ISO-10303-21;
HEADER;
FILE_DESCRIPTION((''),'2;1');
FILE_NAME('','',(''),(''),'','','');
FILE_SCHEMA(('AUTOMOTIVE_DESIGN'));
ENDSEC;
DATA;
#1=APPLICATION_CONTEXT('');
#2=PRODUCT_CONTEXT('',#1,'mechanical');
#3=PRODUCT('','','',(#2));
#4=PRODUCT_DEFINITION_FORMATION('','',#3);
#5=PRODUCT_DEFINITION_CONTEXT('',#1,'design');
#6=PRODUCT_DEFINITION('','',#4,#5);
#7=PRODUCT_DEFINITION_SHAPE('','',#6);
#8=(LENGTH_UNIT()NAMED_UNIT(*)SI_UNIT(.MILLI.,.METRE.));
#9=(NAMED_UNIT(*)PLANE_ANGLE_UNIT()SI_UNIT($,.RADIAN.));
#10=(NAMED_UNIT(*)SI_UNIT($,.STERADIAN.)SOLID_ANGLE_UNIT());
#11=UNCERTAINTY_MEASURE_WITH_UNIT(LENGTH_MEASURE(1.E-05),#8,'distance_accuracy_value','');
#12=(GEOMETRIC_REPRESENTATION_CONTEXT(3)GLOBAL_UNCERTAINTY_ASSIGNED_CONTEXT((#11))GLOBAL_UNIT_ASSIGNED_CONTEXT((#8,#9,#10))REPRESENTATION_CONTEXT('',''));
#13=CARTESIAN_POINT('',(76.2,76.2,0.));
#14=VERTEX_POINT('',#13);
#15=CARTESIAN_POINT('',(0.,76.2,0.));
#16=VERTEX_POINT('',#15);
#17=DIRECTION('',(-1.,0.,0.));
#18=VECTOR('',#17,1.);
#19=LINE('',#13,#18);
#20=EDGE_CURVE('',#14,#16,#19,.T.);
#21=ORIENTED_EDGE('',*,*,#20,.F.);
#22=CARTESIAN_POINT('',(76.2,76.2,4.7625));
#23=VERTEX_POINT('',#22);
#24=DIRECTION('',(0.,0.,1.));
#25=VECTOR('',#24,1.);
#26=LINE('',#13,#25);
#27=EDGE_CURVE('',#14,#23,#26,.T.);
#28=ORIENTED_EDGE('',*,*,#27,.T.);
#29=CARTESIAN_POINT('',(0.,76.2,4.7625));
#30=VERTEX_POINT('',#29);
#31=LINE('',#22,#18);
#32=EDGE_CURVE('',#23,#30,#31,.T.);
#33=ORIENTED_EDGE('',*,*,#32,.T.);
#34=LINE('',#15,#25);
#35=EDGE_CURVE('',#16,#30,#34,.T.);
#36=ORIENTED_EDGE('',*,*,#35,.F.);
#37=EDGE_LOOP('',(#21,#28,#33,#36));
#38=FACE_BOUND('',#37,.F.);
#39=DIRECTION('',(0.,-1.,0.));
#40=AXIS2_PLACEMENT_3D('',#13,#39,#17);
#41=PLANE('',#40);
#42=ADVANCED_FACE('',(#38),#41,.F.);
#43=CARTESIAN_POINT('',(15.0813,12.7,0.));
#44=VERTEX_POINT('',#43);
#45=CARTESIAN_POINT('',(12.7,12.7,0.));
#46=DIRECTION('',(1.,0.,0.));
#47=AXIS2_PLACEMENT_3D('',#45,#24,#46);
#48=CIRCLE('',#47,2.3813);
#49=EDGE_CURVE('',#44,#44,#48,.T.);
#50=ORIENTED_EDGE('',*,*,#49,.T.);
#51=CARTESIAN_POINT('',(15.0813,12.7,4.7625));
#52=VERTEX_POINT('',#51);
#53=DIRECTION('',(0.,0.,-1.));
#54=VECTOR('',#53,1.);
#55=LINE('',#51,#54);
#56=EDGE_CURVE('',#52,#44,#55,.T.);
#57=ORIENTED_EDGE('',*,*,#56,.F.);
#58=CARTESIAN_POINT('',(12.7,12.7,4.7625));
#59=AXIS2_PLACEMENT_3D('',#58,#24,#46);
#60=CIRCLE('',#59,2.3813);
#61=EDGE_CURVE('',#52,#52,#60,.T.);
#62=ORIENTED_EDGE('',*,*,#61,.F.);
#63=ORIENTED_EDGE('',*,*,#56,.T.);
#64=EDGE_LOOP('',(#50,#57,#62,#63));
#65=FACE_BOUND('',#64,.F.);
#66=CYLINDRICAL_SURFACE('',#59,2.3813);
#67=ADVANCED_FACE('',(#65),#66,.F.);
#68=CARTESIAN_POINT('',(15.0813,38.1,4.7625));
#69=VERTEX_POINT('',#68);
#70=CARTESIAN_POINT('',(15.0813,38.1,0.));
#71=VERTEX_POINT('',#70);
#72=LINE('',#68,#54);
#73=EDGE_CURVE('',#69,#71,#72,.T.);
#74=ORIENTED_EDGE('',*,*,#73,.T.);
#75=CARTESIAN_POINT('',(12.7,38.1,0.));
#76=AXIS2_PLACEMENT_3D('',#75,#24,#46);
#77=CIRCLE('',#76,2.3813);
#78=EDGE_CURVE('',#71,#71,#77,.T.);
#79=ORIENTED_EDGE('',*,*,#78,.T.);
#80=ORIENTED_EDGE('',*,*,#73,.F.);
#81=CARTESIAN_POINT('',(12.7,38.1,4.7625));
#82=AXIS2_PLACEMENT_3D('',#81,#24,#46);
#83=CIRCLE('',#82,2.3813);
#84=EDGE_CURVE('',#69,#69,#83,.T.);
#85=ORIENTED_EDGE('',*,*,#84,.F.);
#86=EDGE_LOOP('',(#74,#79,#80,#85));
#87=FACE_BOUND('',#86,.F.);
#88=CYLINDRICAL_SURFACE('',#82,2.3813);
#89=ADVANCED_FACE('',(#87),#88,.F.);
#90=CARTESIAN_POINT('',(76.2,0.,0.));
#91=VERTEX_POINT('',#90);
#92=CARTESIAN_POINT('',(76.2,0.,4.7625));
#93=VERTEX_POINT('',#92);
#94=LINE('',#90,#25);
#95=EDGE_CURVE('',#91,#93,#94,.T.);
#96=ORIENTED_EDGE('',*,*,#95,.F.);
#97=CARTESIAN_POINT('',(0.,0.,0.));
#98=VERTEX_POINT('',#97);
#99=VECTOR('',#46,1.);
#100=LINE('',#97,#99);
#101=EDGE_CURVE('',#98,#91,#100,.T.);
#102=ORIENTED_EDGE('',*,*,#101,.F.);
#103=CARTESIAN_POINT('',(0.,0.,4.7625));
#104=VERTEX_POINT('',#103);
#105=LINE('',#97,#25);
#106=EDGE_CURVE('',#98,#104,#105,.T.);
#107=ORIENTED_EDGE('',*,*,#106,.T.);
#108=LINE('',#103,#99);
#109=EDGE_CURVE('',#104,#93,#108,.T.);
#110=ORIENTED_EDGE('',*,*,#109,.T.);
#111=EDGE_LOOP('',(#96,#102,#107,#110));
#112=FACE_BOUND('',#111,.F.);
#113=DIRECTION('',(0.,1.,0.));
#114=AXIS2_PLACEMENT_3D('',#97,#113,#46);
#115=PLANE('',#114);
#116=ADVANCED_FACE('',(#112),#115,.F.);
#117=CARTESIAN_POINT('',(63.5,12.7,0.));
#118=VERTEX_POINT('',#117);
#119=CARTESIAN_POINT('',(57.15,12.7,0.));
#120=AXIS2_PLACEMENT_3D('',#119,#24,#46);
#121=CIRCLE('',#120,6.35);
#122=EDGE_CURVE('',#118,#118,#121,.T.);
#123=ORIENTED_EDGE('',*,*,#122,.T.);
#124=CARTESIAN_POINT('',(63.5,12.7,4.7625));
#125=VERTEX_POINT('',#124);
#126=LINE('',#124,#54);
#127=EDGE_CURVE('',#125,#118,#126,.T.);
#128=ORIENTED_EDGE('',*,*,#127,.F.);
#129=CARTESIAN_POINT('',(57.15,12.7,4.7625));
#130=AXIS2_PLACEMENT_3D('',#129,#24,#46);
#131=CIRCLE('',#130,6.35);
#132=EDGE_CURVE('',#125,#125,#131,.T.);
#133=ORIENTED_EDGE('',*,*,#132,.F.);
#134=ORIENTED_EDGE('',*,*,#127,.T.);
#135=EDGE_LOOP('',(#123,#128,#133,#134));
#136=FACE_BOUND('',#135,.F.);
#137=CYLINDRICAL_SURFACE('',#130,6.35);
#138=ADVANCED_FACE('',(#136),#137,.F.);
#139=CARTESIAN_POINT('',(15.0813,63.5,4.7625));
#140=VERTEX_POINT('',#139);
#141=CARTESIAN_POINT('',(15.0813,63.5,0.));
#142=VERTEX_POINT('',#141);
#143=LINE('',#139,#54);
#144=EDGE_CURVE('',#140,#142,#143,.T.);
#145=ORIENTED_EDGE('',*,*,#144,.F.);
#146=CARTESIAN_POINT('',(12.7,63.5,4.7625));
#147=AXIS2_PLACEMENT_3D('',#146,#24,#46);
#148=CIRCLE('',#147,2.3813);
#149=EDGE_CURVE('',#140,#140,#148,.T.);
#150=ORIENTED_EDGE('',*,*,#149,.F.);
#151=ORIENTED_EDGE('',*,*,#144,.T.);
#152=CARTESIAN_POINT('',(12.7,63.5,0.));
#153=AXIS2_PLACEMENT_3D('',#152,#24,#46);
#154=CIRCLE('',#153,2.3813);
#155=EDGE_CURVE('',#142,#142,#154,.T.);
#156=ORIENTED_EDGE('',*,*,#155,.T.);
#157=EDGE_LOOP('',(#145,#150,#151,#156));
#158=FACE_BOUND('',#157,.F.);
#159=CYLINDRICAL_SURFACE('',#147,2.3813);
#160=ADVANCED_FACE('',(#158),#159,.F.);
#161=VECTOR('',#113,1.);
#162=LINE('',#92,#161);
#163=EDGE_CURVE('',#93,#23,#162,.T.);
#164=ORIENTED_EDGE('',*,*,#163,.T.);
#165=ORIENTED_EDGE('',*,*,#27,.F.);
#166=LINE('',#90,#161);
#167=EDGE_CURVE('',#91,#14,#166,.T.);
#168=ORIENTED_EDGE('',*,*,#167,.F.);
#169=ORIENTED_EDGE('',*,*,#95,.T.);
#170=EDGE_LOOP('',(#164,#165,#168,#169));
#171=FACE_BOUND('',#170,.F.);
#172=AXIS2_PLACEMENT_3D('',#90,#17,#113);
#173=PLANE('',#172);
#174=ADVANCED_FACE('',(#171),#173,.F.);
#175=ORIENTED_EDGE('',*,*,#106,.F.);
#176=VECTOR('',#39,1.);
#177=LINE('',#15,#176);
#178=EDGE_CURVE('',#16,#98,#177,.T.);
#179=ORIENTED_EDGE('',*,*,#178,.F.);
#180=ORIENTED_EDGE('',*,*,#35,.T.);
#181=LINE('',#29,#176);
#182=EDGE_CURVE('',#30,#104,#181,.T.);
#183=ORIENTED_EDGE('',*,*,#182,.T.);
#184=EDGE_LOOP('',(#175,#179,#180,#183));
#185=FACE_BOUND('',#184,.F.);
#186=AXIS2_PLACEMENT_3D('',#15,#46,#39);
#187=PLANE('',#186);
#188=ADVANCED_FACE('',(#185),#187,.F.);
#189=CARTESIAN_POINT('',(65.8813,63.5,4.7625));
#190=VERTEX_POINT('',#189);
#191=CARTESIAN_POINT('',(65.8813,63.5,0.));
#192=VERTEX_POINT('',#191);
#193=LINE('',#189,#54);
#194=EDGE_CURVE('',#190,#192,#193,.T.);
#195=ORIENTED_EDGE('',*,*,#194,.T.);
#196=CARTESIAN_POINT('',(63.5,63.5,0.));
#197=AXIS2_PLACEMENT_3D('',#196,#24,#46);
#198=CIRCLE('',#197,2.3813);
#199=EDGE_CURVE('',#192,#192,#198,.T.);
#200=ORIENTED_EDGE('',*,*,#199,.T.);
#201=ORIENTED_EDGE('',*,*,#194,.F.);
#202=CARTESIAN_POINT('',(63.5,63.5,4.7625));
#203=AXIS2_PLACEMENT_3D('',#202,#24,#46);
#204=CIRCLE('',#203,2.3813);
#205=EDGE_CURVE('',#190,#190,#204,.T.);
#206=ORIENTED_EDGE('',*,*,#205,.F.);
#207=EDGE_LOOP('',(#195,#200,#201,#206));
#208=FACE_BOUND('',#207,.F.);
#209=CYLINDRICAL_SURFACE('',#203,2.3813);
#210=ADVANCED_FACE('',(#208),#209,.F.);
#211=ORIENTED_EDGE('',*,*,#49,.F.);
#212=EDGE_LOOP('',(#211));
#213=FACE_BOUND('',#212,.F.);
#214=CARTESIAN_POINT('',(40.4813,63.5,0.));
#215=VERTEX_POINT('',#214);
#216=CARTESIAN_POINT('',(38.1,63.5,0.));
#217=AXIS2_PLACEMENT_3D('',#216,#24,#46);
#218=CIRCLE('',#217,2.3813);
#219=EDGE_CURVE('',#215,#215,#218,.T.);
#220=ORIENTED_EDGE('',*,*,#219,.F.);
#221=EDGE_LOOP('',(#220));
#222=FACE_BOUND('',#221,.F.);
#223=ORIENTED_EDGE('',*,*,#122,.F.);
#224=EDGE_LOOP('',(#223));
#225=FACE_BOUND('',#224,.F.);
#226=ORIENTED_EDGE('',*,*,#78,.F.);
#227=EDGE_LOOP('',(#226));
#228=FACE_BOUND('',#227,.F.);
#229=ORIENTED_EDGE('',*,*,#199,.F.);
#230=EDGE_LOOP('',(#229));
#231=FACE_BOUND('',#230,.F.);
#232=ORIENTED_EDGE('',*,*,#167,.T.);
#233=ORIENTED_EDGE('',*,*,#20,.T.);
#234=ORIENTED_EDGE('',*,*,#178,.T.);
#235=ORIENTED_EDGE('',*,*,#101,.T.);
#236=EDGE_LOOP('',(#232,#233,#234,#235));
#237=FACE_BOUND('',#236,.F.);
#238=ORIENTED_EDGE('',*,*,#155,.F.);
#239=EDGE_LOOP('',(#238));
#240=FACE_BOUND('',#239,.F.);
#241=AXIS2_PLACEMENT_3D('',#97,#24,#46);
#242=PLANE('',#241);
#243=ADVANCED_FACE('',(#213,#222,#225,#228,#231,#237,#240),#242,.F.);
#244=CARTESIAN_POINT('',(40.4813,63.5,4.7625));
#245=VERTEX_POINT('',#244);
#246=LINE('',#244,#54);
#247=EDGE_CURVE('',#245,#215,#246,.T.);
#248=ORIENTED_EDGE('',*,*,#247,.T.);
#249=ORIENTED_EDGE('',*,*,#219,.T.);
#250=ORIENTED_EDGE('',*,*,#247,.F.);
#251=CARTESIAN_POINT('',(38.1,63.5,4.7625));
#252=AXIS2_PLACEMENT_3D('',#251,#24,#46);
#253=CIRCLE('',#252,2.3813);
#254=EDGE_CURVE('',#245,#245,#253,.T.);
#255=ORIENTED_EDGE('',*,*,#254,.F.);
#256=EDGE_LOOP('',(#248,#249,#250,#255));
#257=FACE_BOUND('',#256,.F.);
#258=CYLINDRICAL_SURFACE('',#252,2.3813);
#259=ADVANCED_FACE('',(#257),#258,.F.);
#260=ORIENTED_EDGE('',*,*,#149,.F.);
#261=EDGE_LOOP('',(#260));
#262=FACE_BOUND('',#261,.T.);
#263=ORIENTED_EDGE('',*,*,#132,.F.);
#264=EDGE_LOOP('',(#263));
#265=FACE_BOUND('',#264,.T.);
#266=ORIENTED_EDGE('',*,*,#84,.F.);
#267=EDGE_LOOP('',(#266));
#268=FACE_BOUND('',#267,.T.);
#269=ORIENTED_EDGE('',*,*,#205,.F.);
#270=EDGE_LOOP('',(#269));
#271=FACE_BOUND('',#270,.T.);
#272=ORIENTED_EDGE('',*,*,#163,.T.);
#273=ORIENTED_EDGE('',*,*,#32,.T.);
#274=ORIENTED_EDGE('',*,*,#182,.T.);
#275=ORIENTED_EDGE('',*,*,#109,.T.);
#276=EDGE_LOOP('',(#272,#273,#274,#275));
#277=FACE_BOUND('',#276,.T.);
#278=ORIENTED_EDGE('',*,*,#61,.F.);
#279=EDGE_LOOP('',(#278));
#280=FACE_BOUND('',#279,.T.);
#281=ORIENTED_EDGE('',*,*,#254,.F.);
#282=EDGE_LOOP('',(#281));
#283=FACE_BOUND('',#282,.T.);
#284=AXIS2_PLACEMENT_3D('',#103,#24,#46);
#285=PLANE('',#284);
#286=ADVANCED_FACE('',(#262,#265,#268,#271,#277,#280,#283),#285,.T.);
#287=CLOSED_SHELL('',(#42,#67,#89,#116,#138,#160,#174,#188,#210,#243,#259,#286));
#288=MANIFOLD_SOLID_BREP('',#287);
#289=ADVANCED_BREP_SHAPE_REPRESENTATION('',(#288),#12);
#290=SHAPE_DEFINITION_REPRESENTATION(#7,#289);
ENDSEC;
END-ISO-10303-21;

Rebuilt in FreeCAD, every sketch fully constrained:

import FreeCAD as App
import Part
import Sketcher
Q = App.Units.Quantity

doc = App.newDocument("Part")
body = doc.addObject("PartDesign::Body", "Body")

sketch1 = body.newObject("Sketcher::SketchObject", "Sketch")
sketch1.AttachmentSupport = (doc.getObject("XY_Plane"), [""])
sketch1.MapMode = "FlatFace"
sketch1.addGeometry([
    Part.LineSegment(App.Vector(0, 76.2, 0), App.Vector(0, 0, 0)),
    Part.LineSegment(App.Vector(0, 0, 0), App.Vector(76.2, 0, 0)),
    Part.LineSegment(App.Vector(76.2, 0, 0), App.Vector(76.2, 76.2, 0)),
    Part.LineSegment(App.Vector(76.2, 76.2, 0), App.Vector(0, 76.2, 0)),
], False)
sketch1.addConstraint([
    Sketcher.Constraint("Coincident", 0, 2, 1, 1),
    Sketcher.Constraint("Coincident", 1, 2, 2, 1),
    Sketcher.Constraint("Coincident", 2, 2, 3, 1),
    Sketcher.Constraint("Coincident", 3, 2, 0, 1),
    Sketcher.Constraint("Vertical", 0),
    Sketcher.Constraint("Horizontal", 1),
    Sketcher.Constraint("Vertical", 2),
    Sketcher.Constraint("Horizontal", 3),
    Sketcher.Constraint("Coincident", 0, 2, -1, 1),
    Sketcher.Constraint("Equal", 3, 0),
    Sketcher.Constraint("DistanceX", 1, 1, 1, 2, Q("3 in")),
])
pad1 = body.newObject("PartDesign::Pad", "Pad")
pad1.Profile = sketch1
pad1.Length = Q("0.1875 in")

sketch2 = body.newObject("Sketcher::SketchObject", "Sketch001")
sketch2.AttachmentSupport = (doc.getObject("XY_Plane"), [""])
sketch2.MapMode = "FlatFace"
sketch2.AttachmentOffset = App.Placement(App.Vector(0, 0, 0.1875 * 25.4), App.Rotation())
sketch2.addGeometry(Part.Circle(App.Vector(57.15, 12.7, 0), App.Vector(0, 0, 1), 6.35), False)
sketch2.addConstraint([
    Sketcher.Constraint("Diameter", 0, Q("0.5 in")),
    Sketcher.Constraint("DistanceY", -1, 1, 0, 3, Q("0.5 in")),
    Sketcher.Constraint("DistanceX", -1, 1, 0, 3, Q("2.25 in")),
])
pocket1 = body.newObject("PartDesign::Pocket", "Pocket")
pocket1.Profile = sketch2
pocket1.Type = "UpToFirst"

sketch3 = body.newObject("Sketcher::SketchObject", "Sketch002")
sketch3.AttachmentSupport = (doc.getObject("XY_Plane"), [""])
sketch3.MapMode = "FlatFace"
sketch3.AttachmentOffset = App.Placement(App.Vector(0, 0, 0.1875 * 25.4), App.Rotation())
sketch3.addGeometry(Part.Circle(App.Vector(12.7, 63.5, 0), App.Vector(0, 0, 1), 2.3813), False)
sketch3.addConstraint([
    Sketcher.Constraint("Diameter", 0, Q("0.1875 in")),
    Sketcher.Constraint("DistanceX", -1, 1, 0, 3, Q("0.5 in")),
    Sketcher.Constraint("DistanceY", -1, 1, 0, 3, Q("2.5 in")),
])
pocket2 = body.newObject("PartDesign::Pocket", "Pocket001")
pocket2.Profile = sketch3
pocket2.Type = "UpToFirst"
doc.recompute()

linearpattern = body.newObject("PartDesign::LinearPattern", "LinearPattern")
linearpattern.Originals = [pocket2]
linearpattern.Direction = (doc.getObject("X_Axis"), [""])
linearpattern.Mode = "offset"
linearpattern.Offset = Q("1 in")
linearpattern.Occurrences = 3
body.Tip = linearpattern
doc.recompute()

linearpattern2 = body.newObject("PartDesign::LinearPattern", "LinearPattern001")
linearpattern2.Originals = [pocket2]
linearpattern2.Direction = (doc.getObject("Y_Axis"), [""])
linearpattern2.Mode = "offset"
linearpattern2.Offset = Q("1 in")
linearpattern2.Occurrences = 3
linearpattern2.Reversed = True
body.Tip = linearpattern2

doc.recompute()
